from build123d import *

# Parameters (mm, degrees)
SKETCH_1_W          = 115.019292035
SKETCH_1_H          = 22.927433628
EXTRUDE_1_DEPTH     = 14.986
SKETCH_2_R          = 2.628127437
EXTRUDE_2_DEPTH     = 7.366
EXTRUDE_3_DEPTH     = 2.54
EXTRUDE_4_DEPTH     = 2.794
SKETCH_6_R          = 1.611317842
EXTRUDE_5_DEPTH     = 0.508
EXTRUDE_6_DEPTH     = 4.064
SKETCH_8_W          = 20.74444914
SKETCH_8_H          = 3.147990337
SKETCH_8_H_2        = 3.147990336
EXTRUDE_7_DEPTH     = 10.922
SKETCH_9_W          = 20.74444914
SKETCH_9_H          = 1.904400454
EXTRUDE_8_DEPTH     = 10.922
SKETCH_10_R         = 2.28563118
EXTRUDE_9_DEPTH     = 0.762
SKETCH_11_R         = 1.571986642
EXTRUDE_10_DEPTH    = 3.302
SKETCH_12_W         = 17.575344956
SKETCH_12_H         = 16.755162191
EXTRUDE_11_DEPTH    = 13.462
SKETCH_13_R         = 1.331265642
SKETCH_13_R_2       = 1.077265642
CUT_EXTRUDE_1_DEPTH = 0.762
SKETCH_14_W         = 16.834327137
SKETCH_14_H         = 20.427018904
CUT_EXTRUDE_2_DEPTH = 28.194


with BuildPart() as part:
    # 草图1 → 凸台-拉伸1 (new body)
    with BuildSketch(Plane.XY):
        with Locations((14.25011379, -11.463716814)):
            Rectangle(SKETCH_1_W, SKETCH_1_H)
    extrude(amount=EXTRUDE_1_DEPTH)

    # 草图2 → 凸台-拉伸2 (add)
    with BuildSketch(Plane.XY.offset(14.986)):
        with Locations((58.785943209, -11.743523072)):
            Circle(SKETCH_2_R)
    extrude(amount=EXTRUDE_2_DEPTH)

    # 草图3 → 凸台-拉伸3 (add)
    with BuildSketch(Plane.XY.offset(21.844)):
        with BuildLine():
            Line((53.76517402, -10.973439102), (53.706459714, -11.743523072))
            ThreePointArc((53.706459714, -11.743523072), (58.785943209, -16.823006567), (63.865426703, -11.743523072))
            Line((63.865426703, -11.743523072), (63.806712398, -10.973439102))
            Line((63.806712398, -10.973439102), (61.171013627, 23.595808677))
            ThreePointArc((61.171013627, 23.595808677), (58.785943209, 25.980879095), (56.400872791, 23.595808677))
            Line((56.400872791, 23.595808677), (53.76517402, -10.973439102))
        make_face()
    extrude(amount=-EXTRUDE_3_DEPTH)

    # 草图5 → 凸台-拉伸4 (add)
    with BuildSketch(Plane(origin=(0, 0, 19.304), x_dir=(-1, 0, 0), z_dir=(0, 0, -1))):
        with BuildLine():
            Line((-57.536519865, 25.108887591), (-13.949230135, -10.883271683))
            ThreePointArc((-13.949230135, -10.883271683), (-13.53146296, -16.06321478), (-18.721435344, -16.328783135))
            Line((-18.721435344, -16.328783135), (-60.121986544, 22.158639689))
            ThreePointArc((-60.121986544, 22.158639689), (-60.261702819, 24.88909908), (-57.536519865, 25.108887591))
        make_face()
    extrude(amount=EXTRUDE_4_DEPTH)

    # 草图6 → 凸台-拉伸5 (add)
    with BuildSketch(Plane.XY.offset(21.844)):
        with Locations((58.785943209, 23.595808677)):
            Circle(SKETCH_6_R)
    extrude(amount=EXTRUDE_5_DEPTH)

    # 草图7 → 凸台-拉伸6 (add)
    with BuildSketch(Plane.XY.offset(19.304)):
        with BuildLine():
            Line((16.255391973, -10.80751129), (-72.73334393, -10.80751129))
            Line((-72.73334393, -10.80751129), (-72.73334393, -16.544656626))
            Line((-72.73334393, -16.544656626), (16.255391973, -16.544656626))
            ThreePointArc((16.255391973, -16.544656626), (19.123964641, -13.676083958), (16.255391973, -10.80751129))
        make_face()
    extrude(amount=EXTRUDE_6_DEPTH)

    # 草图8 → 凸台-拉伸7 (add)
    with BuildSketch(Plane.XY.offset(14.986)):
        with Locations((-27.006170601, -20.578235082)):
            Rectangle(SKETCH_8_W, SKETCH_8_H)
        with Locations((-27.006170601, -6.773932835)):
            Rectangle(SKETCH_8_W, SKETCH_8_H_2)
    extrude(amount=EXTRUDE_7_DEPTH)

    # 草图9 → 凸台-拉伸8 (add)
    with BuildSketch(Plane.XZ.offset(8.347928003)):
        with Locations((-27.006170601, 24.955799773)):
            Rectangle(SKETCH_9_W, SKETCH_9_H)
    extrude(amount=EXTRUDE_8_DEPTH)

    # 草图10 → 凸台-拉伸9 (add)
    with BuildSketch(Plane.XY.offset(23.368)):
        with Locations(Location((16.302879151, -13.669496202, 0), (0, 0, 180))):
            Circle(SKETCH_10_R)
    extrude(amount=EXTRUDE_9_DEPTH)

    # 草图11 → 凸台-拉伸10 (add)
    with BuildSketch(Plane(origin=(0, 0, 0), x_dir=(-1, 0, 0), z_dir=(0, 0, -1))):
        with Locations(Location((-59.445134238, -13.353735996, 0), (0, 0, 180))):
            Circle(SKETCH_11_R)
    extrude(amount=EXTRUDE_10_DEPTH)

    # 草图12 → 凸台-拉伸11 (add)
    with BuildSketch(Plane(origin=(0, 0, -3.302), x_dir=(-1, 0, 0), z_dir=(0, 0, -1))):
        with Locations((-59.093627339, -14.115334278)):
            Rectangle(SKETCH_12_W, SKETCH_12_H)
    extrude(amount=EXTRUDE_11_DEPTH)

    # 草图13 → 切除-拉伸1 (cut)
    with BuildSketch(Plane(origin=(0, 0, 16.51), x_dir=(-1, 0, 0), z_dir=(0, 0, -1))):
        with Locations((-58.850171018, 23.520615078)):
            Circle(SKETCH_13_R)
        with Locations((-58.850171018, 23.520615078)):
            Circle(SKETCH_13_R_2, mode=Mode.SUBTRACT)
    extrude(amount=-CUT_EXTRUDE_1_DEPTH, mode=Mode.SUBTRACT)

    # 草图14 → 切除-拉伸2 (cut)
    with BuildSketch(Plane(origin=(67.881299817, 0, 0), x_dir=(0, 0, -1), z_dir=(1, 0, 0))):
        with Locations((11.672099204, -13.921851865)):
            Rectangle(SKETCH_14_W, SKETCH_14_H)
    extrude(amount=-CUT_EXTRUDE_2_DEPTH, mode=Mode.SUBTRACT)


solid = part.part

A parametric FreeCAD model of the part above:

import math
import FreeCAD as App
import Part
import Sketcher

V = App.Vector
Q = App.Units.Quantity


def add_polygon(sketch, points):
    """Adds a closed chain of lines whose ends are joined by coincident constraints."""
    first, n = sketch.GeometryCount, len(points)
    for a, b in zip(points, points[1:] + points[:1]):
        sketch.addGeometry(Part.LineSegment(App.Vector(*a, 0), App.Vector(*b, 0)), False)
    for i in range(n):
        sketch.addConstraint(Sketcher.Constraint("Coincident", first + i, 2, first + (i + 1) % n, 1))

doc = App.newDocument("Part")
params = doc.addObject("Spreadsheet::Sheet", "Params")
for row, (alias, value) in enumerate([
    ("pad1_length", "0.59 in"),
    ("pad2_length", "0.29 in"),
    ("pad3_length", "0.1 in"),
    ("pad4_length", "0.11 in"),
    ("pad5_length", "0.02 in"),
    ("pad6_length", "0.16 in"),
    ("pad7_length", "0.43 in"),
    ("pad8_length", "0.43 in"),
    ("pad9_length", "0.03 in"),
    ("pad10_length", "0.13 in"),
    ("pad11_length", "0.53 in"),
    ("pocket1_length", "0.03 in"),
    ("pocket2_length", "1.11 in"),
], start=1):
    params.set(f"A{row}", alias)
    params.set(f"B{row}", "=" + value)
    params.setAlias(f"B{row}", alias)

body = doc.addObject("PartDesign::Body", "Body")

# Sketch on XY plane
sketch1 = body.newObject("Sketcher::SketchObject", "Sketch")
sketch1.AttachmentSupport = (doc.getObject("XY_Plane"), [""])
sketch1.MapMode = "FlatFace"
add_polygon(sketch1, [(-43.259532, 0), (-43.259532, -22.927434), (71.75976, -22.927434), (71.75976, 0)])  # lines 0-3
sketch1.addConstraint([
    Sketcher.Constraint("Vertical", 0),
    Sketcher.Constraint("Horizontal", 1),
    Sketcher.Constraint("Vertical", 2),
    Sketcher.Constraint("Horizontal", 3),
    Sketcher.Constraint("PointOnObject", 2, 2, -1),
    Sketcher.Constraint("DistanceX", 1, 1, 1, 2, 115.019292),
    Sketcher.Constraint("DistanceY", 0, 2, 0, 1, 22.927434),
    Sketcher.Constraint("DistanceX", -1, 1, 1, 2, 71.75976),
])
pad1 = body.newObject("PartDesign::Pad", "Pad")
pad1.Profile = sketch1
pad1.setExpression("Length", "Params.pad1_length")

# Sketch on XY plane
sketch2 = body.newObject("Sketcher::SketchObject", "Sketch001")
sketch2.AttachmentSupport = (doc.getObject("XY_Plane"), [""])
sketch2.MapMode = "FlatFace"
sketch2.AttachmentOffset = App.Placement(V(0, 0, 0.59 * 25.4), App.Rotation())
sketch2.addGeometry(Part.Circle(V(58.785943, -11.743523, 0), V(0, 0, 1), 2.628127), False)
sketch2.addConstraint([
    Sketcher.Constraint("Diameter", 0, 5.256255),
    Sketcher.Constraint("DistanceX", -1, 1, 0, 3, 58.785943),
    Sketcher.Constraint("DistanceY", 0, 3, -1, 1, 11.743523),
])
pad2 = body.newObject("PartDesign::Pad", "Pad001")
pad2.Profile = sketch2
pad2.setExpression("Length", "Params.pad2_length")

# Sketch on XY plane
sketch3 = body.newObject("Sketcher::SketchObject", "Sketch002")
sketch3.AttachmentSupport = (doc.getObject("XY_Plane"), [""])
sketch3.MapMode = "FlatFace"
sketch3.AttachmentOffset = App.Placement(V(0, 0, 0.86 * 25.4), App.Rotation())
sketch3.addGeometry([
    Part.LineSegment(V(53.765174, -10.973439, 0), V(53.70646, -11.743523, 0)),  # 0
    Part.ArcOfCircle(Part.Circle(V(58.785943, -11.743523, 0), V(0, 0, 1), 5.079483), math.radians(180), math.radians(360)),  # 1
    Part.LineSegment(V(63.865427, -11.743523, 0), V(63.806712, -10.973439, 0)),  # 2
    Part.LineSegment(V(63.806712, -10.973439, 0), V(61.171014, 23.595809, 0)),  # 3
    Part.ArcOfCircle(Part.Circle(V(58.785943, 23.595809, 0), V(0, 0, 1), 2.38507), math.radians(0), math.radians(180)),  # 4
    Part.LineSegment(V(56.400873, 23.595809, 0), V(53.765174, -10.973439, 0)),  # 5
], False)
sketch3.addConstraint([
    Sketcher.Constraint("Coincident", 0, 2, 1, 1),
    Sketcher.Constraint("Coincident", 1, 2, 2, 1),
    Sketcher.Constraint("Coincident", 2, 2, 3, 1),
    Sketcher.Constraint("Coincident", 3, 2, 4, 1),
    Sketcher.Constraint("Coincident", 4, 2, 5, 1),
    Sketcher.Constraint("Coincident", 5, 2, 0, 1),
    Sketcher.Constraint("Radius", 4, 2.38507),
    Sketcher.Constraint("Radius", 1, 5.079483),
    Sketcher.Constraint("DistanceX", 3, 2, 2, 2, 2.635699),
    Sketcher.Constraint("DistanceX", 5, 2, 4, 2, 2.635699),
    Sketcher.Constraint("Distance", 0, 0.772319),
    Sketcher.Constraint("Distance", 2, 0.772319),
    Sketcher.Constraint("Distance", 3, 34.66958),
    Sketcher.Constraint("Distance", 5, 34.66958),
    Sketcher.Constraint("DistanceY", -1, 1, 4, 3, 23.595809),
    Sketcher.Constraint("DistanceX", -1, 1, 0, 2, 53.70646),
    Sketcher.Constraint("DistanceY", 2, 2, -1, 1, 10.973439),
    Sketcher.Constraint("DistanceY", -1, 1, 4, 2, 23.595809),
    Sketcher.Constraint("DistanceY", 1, 3, 4, 3, 35.339332),
    Sketcher.Constraint("DistanceY", 0, 2, 4, 3, 35.339332),
])
pad3 = body.newObject("PartDesign::Pad", "Pad002")
pad3.Profile = sketch3
pad3.setExpression("Length", "Params.pad3_length")
pad3.Reversed = True

# Sketch on XY plane
sketch4 = body.newObject("Sketcher::SketchObject", "Sketch003")
sketch4.AttachmentSupport = (doc.getObject("XY_Plane"), [""])
sketch4.MapMode = "FlatFace"
sketch4.AttachmentOffset = App.Placement(V(0, 0, 0.76 * 25.4), App.Rotation())
sketch4.addGeometry([
    Part.LineSegment(V(13.94923, -10.883272, 0), V(57.53652, 25.108888, 0)),
    Part.ArcOfCircle(Part.Circle(V(58.785943, 23.595809, 0), V(0, 0, 1), 1.962261), math.radians(-47.088375), math.radians(129.548155)),
    Part.LineSegment(V(60.121987, 22.15864, 0), V(18.721435, -16.328783, 0)),
    Part.ArcOfCircle(Part.Circle(V(16.255392, -13.676084, 0), V(0, 0, 1), 3.621903), math.radians(129.548155), math.radians(312.911625)),
], False)
sketch4.addConstraint([
    Sketcher.Constraint("Coincident", 0, 2, 1, 2),
    Sketcher.Constraint("Coincident", 1, 1, 2, 1),
    Sketcher.Constraint("Coincident", 2, 2, 3, 2),
    Sketcher.Constraint("Coincident", 3, 1, 0, 1),
    Sketcher.Constraint("Radius", 1, 1.962261),
    Sketcher.Constraint("Radius", 3, 3.621903),
    Sketcher.Constraint("DistanceX", 1, 3, 1, 1, Q("0.0526001 in")),
    Sketcher.Constraint("DistanceY", 2, 2, 3, 3, 2.652699),
    Sketcher.Constraint("DistanceY", -1, 1, 1, 3, 23.595809),
    Sketcher.Constraint("DistanceX", -1, 1, 3, 3, 16.255392),
    Sketcher.Constraint("DistanceX", -1, 1, 0, 2, 57.53652),
    Sketcher.Constraint("DistanceX", -1, 1, 3, 1, 13.94923),
    Sketcher.Constraint("DistanceY", 3, 1, -1, 1, 10.883272),
    Sketcher.Constraint("DistanceX", 3, 3, 1, 3, 42.530551),
])
pad4 = body.newObject("PartDesign::Pad", "Pad003")
pad4.Profile = sketch4
pad4.setExpression("Length", "Params.pad4_length")
pad4.Reversed = True

# Sketch on XY plane
sketch5 = body.newObject("Sketcher::SketchObject", "Sketch004")
sketch5.AttachmentSupport = (doc.getObject("XY_Plane"), [""])
sketch5.MapMode = "FlatFace"
sketch5.AttachmentOffset = App.Placement(V(0, 0, 0.86 * 25.4), App.Rotation())
sketch5.addGeometry(Part.Circle(V(58.785943, 23.595809, 0), V(0, 0, 1), 1.611318), False)
sketch5.addConstraint([
    Sketcher.Constraint("Diameter", 0, 3.222636),
    Sketcher.Constraint("DistanceY", -1, 1, 0, 3, 23.595809),
    Sketcher.Constraint("DistanceX", -1, 1, 0, 3, 58.785943),
])
pad5 = body.newObject("PartDesign::Pad", "Pad004")
pad5.Profile = sketch5
pad5.setExpression("Length", "Params.pad5_length")

# Sketch on XY plane
sketch6 = body.newObject("Sketcher::SketchObject", "Sketch005")
sketch6.AttachmentSupport = (doc.getObject("XY_Plane"), [""])
sketch6.MapMode = "FlatFace"
sketch6.AttachmentOffset = App.Placement(V(0, 0, 0.76 * 25.4), App.Rotation())
sketch6.addGeometry([
    Part.LineSegment(V(16.255392, -10.807511, 0), V(-72.733344, -10.807511, 0)),
    Part.LineSegment(V(-72.733344, -10.807511, 0), V(-72.733344, -16.544657, 0)),
    Part.LineSegment(V(-72.733344, -16.544657, 0), V(16.255392, -16.544657, 0)),
    Part.ArcOfCircle(Part.Circle(V(16.255392, -13.676084, 0), V(0, 0, 1), 2.868573), math.radians(-90), math.radians(90)),
], False)
sketch6.addConstraint([
    Sketcher.Constraint("Coincident", 0, 2, 1, 1),
    Sketcher.Constraint("Coincident", 1, 2, 2, 1),
    Sketcher.Constraint("Tangent", 2, 2, 3, 1),
    Sketcher.Constraint("Tangent", 3, 2, 0, 1),
    Sketcher.Constraint("Horizontal", 0),
    Sketcher.Constraint("Vertical", 1),
    Sketcher.Constraint("Horizontal", 2),
    Sketcher.Constraint("Radius", 3, 2.868573),
    Sketcher.Constraint("DistanceX", 0, 2, 0, 1, 88.988736),
    Sketcher.Constraint("DistanceX", -1, 1, 3, 3, 16.255392),
    Sketcher.Constraint("DistanceY", 0, 2, -1, 1, 10.807511),
])
pad6 = body.newObject("PartDesign::Pad", "Pad005")
pad6.Profile = sketch6
pad6.setExpression("Length", "Params.pad6_length")

# Sketch on XY plane
sketch7 = body.newObject("Sketcher::SketchObject", "Sketch006")
sketch7.AttachmentSupport = (doc.getObject("XY_Plane"), [""])
sketch7.MapMode = "FlatFace"
sketch7.AttachmentOffset = App.Placement(V(0, 0, 0.59 * 25.4), App.Rotation())
add_polygon(sketch7, [(-37.378395, -19.00424), (-37.378395, -22.15223), (-16.633946, -22.15223), (-16.633946, -19.00424)])  # lines 0-3
add_polygon(sketch7, [(-37.378395, -5.199938), (-37.378395, -8.347928), (-16.633946, -8.347928), (-16.633946, -5.199938)])  # lines 4-7
sketch7.addConstraint([
    Sketcher.Constraint("Vertical", 0),
    Sketcher.Constraint("Horizontal", 1),
    Sketcher.Constraint("Vertical", 2),
    Sketcher.Constraint("Horizontal", 3),
    Sketcher.Constraint("Vertical", 4),
    Sketcher.Constraint("Horizontal", 5),
    Sketcher.Constraint("Vertical", 6),
    Sketcher.Constraint("Horizontal", 7),
    Sketcher.Constraint("Vertical", 3, 2, 4, 2),
    Sketcher.Constraint("Vertical", 2, 2, 5, 2),
    Sketcher.Constraint("Equal", 2, 4),
    Sketcher.Constraint("DistanceX", 1, 1, 1, 2, 20.744449),
    Sketcher.Constraint("DistanceY", 0, 2, 0, 1, 3.14799),
    Sketcher.Constraint("DistanceY", 0, 2, -1, 1, 22.15223),
    Sketcher.Constraint("DistanceY", 4, 2, -1, 1, 8.347928),
    Sketcher.Constraint("DistanceX", 0, 2, -1, 1, 37.378395),
])
pad7 = body.newObject("PartDesign::Pad", "Pad006")
pad7.Profile = sketch7
pad7.setExpression("Length", "Params.pad7_length")

# Sketch on XZ plane
sketch8 = body.newObject("Sketcher::SketchObject", "Sketch007")
sketch8.AttachmentSupport = (doc.getObject("XZ_Plane"), [""])
sketch8.MapMode = "FlatFace"
sketch8.AttachmentOffset = App.Placement(V(0, 0, 8.347928), App.Rotation())
add_polygon(sketch8, [(-37.378395, 25.908), (-37.378395, 24.0036), (-16.633946, 24.0036), (-16.633946, 25.908)])  # lines 0-3
sketch8.addConstraint([
    Sketcher.Constraint("Vertical", 0),
    Sketcher.Constraint("Horizontal", 1),
    Sketcher.Constraint("Vertical", 2),
    Sketcher.Constraint("Horizontal", 3),
    Sketcher.Constraint("DistanceY", -1, 1, 2, 2, Q("1.02 in")),
    Sketcher.Constraint("DistanceY", 0, 2, 0, 1, 1.9044),
    Sketcher.Constraint("DistanceX", 1, 1, 1, 2, 20.744449),
    Sketcher.Constraint("DistanceX", 0, 2, -1, 1, 37.378395),
])
pad8 = body.newObject("PartDesign::Pad", "Pad007")
pad8.Profile = sketch8
pad8.setExpression("Length", "Params.pad8_length")

# Sketch on XY plane
sketch9 = body.newObject("Sketcher::SketchObject", "Sketch008")
sketch9.AttachmentSupport = (doc.getObject("XY_Plane"), [""])
sketch9.MapMode = "FlatFace"
sketch9.AttachmentOffset = App.Placement(V(0, 0, 0.92 * 25.4), App.Rotation())
sketch9.addGeometry(Part.Circle(V(16.302879, -13.669496, 0), V(0, 0, 1), 2.285631), False)
sketch9.addConstraint([
    Sketcher.Constraint("Diameter", 0, 4.571262),
    Sketcher.Constraint("DistanceX", -1, 1, 0, 3, 16.302879),
    Sketcher.Constraint("DistanceY", 0, 3, -1, 1, 13.669496),
])
pad9 = body.newObject("PartDesign::Pad", "Pad008")
pad9.Profile = sketch9
pad9.setExpression("Length", "Params.pad9_length")

# Sketch on XY plane
sketch10 = body.newObject("Sketcher::SketchObject", "Sketch009")
sketch10.AttachmentSupport = (doc.getObject("XY_Plane"), [""])
sketch10.MapMode = "FlatFace"
sketch10.addGeometry(Part.Circle(V(59.445134, -13.353736, 0), V(0, 0, 1), 1.571987), False)
sketch10.addConstraint([
    Sketcher.Constraint("Diameter", 0, 3.143973),
    Sketcher.Constraint("DistanceX", -1, 1, 0, 3, 59.445134),
    Sketcher.Constraint("DistanceY", 0, 3, -1, 1, 13.353736),
])
pad10 = body.newObject("PartDesign::Pad", "Pad009")
pad10.Profile = sketch10
pad10.setExpression("Length", "Params.pad10_length")
pad10.Reversed = True

# Sketch on XY plane
sketch11 = body.newObject("Sketcher::SketchObject", "Sketch010")
sketch11.AttachmentSupport = (doc.getObject("XY_Plane"), [""])
sketch11.MapMode = "FlatFace"
sketch11.AttachmentOffset = App.Placement(V(0, 0, -0.13 * 25.4), App.Rotation())
add_polygon(sketch11, [(67.8813, -5.737753), (67.8813, -22.492915), (50.305955, -22.492915), (50.305955, -5.737753)])  # lines 0-3
sketch11.addConstraint([
    Sketcher.Constraint("Vertical", 0),
    Sketcher.Constraint("Horizontal", 1),
    Sketcher.Constraint("Vertical", 2),
    Sketcher.Constraint("Horizontal", 3),
    Sketcher.Constraint("DistanceX", -1, 1, 0, 2, 67.8813),
    Sketcher.Constraint("DistanceX", 1, 2, 1, 1, 17.575345),
    Sketcher.Constraint("DistanceY", 0, 2, 0, 1, 16.755162),
    Sketcher.Constraint("DistanceY", 0, 2, -1, 1, 22.492915),
])
pad11 = body.newObject("PartDesign::Pad", "Pad010")
pad11.Profile = sketch11
pad11.setExpression("Length", "Params.pad11_length")
pad11.Reversed = True

# Sketch on XY plane
sketch12 = body.newObject("Sketcher::SketchObject", "Sketch011")
sketch12.AttachmentSupport = (doc.getObject("XY_Plane"), [""])
sketch12.MapMode = "FlatFace"
sketch12.AttachmentOffset = App.Placement(V(0, 0, 0.65 * 25.4), App.Rotation())
sketch12.addGeometry([
    Part.Circle(V(58.850171, 23.520615, 0), V(0, 0, 1), 1.331266),
    Part.Circle(V(58.850171, 23.520615, 0), V(0, 0, 1), 1.077266),
], False)
sketch12.addConstraint([
    Sketcher.Constraint("Coincident", 1, 3, 0, 3),
    Sketcher.Constraint("Diameter", 0, 2.662531),
    Sketcher.Constraint("Diameter", 1, 2.154531),
    Sketcher.Constraint("DistanceX", -1, 1, 0, 3, 58.850171),
    Sketcher.Constraint("DistanceY", -1, 1, 0, 3, 23.520615),
])
pocket1 = body.newObject("PartDesign::Pocket", "Pocket")
pocket1.Profile = sketch12
pocket1.setExpression("Length", "Params.pocket1_length")
pocket1.Reversed = True

# Sketch on YZ plane
sketch13 = body.newObject("Sketcher::SketchObject", "Sketch012")
sketch13.AttachmentSupport = (doc.getObject("YZ_Plane"), [""])
sketch13.MapMode = "FlatFace"
sketch13.AttachmentOffset = App.Placement(V(0, 0, 67.8813), App.Rotation())
add_polygon(sketch13, [(-3.708342, -3.254936), (-24.135361, -3.254936), (-24.135361, -20.089263), (-3.708342, -20.089263)])  # lines 0-3
sketch13.addConstraint([
    Sketcher.Constraint("Horizontal", 0),
    Sketcher.Constraint("Vertical", 1),
    Sketcher.Constraint("Horizontal", 2),
    Sketcher.Constraint("Vertical", 3),
    Sketcher.Constraint("DistanceX", 0, 2, 0, 1, 20.427019),
    Sketcher.Constraint("DistanceY", 1, 2, 1, 1, 16.834327),
    Sketcher.Constraint("DistanceX", 0, 2, -1, 1, 24.135361),
    Sketcher.Constraint("DistanceY", 0, 2, -1, 1, 3.254936),
])
pocket2 = body.newObject("PartDesign::Pocket", "Pocket001")
pocket2.Profile = sketch13
pocket2.setExpression("Length", "Params.pocket2_length")

doc.recompute()
